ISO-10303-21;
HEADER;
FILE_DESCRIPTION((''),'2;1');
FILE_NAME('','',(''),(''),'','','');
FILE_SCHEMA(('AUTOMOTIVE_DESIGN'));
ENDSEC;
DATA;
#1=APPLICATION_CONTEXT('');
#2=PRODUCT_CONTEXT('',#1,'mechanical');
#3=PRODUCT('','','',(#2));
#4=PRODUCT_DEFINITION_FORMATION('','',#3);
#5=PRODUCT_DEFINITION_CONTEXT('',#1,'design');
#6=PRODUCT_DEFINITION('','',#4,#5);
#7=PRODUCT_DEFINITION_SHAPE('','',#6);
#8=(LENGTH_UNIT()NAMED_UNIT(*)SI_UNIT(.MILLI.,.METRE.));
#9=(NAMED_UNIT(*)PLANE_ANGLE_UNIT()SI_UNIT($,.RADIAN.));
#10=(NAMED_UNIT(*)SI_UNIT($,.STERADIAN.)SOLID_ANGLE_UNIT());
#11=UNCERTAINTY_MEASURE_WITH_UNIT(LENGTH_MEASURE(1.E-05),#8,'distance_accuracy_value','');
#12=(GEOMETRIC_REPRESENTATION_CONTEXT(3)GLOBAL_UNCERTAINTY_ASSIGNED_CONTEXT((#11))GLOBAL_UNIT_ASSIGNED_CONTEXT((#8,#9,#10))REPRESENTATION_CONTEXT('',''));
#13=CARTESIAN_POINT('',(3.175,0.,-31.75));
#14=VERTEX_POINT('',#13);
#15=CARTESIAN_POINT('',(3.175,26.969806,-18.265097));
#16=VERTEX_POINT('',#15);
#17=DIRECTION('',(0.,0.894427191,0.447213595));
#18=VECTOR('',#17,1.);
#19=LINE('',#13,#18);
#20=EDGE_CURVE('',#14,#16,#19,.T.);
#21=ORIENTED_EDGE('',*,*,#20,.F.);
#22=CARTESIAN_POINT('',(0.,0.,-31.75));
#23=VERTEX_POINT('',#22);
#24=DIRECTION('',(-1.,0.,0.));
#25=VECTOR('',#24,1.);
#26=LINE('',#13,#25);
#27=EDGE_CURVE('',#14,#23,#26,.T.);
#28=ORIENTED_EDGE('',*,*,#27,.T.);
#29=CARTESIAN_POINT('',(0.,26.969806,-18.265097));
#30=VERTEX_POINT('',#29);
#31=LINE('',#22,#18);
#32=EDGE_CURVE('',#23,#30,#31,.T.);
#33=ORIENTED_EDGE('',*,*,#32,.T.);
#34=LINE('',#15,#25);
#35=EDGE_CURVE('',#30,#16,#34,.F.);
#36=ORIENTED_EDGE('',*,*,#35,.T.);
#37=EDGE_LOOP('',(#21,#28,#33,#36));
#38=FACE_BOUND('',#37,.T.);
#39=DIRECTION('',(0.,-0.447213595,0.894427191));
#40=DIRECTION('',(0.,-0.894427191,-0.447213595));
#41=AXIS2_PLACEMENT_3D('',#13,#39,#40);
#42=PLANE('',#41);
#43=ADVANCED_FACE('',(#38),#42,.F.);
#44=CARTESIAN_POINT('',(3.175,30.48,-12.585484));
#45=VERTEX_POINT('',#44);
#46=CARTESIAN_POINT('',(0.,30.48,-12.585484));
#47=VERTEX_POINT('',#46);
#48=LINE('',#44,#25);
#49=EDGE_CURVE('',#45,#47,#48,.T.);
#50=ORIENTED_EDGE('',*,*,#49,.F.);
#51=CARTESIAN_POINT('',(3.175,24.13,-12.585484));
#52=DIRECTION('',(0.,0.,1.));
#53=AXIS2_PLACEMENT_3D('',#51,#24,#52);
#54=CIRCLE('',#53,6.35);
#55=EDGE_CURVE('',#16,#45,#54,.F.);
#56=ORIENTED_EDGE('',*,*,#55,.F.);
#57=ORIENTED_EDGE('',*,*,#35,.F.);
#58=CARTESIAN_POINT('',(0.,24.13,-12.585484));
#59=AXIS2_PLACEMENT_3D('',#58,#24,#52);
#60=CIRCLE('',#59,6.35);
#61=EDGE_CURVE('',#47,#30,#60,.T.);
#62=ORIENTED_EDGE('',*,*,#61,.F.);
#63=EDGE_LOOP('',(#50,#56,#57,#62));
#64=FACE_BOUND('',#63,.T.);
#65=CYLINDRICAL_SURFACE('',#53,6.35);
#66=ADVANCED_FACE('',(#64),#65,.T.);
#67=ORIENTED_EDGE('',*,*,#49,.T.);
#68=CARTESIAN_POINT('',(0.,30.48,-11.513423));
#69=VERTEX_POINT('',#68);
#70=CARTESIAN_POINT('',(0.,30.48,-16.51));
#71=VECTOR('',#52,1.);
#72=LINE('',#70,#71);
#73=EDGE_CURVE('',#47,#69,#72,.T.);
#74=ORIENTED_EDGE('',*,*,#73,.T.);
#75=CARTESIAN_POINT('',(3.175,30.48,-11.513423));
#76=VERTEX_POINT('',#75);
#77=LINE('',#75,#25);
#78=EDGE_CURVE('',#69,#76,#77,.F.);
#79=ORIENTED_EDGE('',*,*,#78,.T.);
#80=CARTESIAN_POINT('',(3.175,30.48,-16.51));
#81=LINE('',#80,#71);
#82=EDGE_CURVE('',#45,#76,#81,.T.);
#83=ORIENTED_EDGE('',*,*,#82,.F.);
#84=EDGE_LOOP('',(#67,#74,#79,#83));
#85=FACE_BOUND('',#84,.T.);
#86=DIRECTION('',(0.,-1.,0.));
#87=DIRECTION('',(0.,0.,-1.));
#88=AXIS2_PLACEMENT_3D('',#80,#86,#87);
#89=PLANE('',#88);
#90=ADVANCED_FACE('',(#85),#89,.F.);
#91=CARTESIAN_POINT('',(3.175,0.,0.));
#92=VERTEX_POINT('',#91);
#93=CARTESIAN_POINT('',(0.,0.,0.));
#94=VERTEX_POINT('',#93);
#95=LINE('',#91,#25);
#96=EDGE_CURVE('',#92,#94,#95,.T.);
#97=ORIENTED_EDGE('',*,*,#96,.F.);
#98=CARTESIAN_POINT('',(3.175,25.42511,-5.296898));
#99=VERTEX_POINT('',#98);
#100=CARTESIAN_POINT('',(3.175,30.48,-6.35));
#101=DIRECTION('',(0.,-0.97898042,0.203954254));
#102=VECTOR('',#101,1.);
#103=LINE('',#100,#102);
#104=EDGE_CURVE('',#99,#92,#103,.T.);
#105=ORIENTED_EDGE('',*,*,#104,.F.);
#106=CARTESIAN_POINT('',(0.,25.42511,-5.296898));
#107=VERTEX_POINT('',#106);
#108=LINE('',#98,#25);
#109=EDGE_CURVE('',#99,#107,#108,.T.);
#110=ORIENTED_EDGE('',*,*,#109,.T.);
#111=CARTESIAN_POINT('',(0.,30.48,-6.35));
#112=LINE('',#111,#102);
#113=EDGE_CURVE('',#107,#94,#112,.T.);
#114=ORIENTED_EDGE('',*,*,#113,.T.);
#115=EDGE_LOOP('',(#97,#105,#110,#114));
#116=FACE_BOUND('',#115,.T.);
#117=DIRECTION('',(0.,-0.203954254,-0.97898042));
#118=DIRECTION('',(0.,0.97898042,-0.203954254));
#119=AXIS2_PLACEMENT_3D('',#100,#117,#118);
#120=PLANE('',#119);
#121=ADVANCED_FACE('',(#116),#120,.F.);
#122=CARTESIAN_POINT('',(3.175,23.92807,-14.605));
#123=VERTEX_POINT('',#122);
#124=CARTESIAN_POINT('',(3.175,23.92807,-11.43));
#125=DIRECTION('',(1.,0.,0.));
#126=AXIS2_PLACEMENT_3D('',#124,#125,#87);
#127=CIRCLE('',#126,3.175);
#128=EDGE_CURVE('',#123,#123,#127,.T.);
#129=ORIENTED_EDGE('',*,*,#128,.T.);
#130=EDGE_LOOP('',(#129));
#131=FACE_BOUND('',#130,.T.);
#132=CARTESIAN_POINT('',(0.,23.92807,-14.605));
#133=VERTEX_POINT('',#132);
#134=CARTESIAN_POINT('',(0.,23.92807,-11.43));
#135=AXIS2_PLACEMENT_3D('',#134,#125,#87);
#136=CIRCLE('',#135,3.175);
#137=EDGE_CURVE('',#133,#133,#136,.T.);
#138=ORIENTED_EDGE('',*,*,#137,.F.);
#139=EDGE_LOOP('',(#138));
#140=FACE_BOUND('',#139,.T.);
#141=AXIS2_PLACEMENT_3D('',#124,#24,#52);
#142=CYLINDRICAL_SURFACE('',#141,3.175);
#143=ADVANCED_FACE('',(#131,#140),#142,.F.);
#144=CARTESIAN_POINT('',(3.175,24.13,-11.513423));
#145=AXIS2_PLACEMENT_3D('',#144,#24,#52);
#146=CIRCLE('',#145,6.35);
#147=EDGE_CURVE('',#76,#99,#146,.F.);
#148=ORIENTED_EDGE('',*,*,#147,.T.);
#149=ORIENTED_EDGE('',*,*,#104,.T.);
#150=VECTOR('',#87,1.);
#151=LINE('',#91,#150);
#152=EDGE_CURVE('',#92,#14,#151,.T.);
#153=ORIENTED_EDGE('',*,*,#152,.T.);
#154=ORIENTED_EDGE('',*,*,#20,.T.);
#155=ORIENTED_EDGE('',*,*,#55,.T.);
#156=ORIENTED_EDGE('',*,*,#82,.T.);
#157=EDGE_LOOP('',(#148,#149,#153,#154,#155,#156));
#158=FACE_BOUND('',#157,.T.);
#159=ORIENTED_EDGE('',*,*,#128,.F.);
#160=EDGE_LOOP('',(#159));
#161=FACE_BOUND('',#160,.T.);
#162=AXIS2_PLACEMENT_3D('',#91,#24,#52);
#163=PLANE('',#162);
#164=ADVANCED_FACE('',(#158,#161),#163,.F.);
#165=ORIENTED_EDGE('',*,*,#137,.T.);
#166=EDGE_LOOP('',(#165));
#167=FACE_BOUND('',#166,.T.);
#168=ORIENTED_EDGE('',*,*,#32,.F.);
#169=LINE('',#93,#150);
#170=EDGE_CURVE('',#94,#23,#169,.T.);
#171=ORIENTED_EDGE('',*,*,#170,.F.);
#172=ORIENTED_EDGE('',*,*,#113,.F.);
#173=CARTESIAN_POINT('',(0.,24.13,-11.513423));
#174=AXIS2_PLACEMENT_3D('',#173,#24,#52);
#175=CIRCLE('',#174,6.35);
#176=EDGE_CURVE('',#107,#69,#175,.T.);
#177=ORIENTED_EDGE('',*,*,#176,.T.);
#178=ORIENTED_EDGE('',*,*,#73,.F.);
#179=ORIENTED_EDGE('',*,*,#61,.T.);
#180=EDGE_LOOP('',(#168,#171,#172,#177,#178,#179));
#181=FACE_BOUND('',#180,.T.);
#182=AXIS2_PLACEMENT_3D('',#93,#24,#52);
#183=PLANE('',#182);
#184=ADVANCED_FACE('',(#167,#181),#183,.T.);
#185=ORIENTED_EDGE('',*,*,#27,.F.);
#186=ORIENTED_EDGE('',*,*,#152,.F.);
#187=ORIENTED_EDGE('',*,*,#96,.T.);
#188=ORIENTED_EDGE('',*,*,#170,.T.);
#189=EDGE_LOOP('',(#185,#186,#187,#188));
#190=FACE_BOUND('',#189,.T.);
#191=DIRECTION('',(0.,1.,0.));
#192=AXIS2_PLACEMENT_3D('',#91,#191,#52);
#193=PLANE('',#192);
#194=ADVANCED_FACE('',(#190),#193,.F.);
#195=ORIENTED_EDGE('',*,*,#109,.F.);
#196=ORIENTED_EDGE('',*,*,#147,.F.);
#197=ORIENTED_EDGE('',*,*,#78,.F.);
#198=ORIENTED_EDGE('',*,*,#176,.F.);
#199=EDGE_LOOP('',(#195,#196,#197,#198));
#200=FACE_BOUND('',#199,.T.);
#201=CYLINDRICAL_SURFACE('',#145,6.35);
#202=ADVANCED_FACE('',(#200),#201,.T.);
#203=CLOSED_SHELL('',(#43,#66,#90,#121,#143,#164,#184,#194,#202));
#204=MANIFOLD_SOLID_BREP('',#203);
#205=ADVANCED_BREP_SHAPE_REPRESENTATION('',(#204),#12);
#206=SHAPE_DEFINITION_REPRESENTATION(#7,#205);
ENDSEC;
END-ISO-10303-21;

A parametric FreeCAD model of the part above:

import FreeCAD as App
import Part
import Sketcher
from FreeCAD import Vector
Q = App.Units.Quantity


def edges_at(feature, points):
    """Names of the edges that pass closest to the given points."""
    edges = feature.Shape.Edges
    near = lambda p: min(range(len(edges)), key=lambda i: edges[i].distToShape(Part.Vertex(*p))[0])
    return sorted({f"Edge{near(p) + 1}" for p in points})


def add_polygon(sketch, points):
    """Adds a closed chain of lines whose ends are joined by coincident constraints."""
    first, n = sketch.GeometryCount, len(points)
    for a, b in zip(points, points[1:] + points[:1]):
        sketch.addGeometry(Part.LineSegment(App.Vector(*a, 0), App.Vector(*b, 0)), False)
    for i in range(n):
        sketch.addConstraint(Sketcher.Constraint("Coincident", first + i, 2, first + (i + 1) % n, 1))

doc = App.newDocument("Part")
params = doc.addObject("Spreadsheet::Sheet", "Params")
for row, (alias, value) in enumerate([
    ("sketch1_diameter", "0.25 in"),
    ("sketch1_height", "0.4 in"),
    ("sketch1_height2", "1.25 in"),
    ("pad1_length", "0.125 in"),
    ("fillet_radius", "0.25 in"),
], start=1):
    params.set(f"A{row}", alias)
    params.set(f"B{row}", "=" + value)
    params.setAlias(f"B{row}", alias)

body = doc.addObject("PartDesign::Body", "Body")

# Sketch on YZ plane
sketch1 = body.newObject("Sketcher::SketchObject", "Sketch")
sketch1.AttachmentSupport = (doc.getObject("YZ_Plane"), [""])
sketch1.MapMode = "FlatFace"
add_polygon(sketch1, [(0, -31.8), (30.5, -16.5), (30.5, -6.3), (0, 0)])  # lines 0-3
sketch1.addGeometry(Part.Circle(Vector(23.9, -11.4, 0), Vector(0, 0, 1), 3.2), False)  # 4
sketch1.addConstraint(Sketcher.Constraint("Vertical", 1))
sketch1.addConstraint(Sketcher.Constraint("Vertical", 3))
sketch1.addConstraint(Sketcher.Constraint("Coincident", 2, 2, -1, 1))
sketch1.addConstraint(Sketcher.Constraint("Diameter", 4, Q("0.25 in")))
sketch1.addConstraint(Sketcher.Constraint("DistanceY", 1, 1, 1, 2, Q("0.4 in")))
sketch1.addConstraint(Sketcher.Constraint("DistanceY", 3, 2, 1, 2, Q("1 in")))
sketch1.addConstraint(Sketcher.Constraint("DistanceY", 3, 2, 3, 1, Q("1.25 in")))
sketch1.addConstraint(Sketcher.Constraint("DistanceX", -1, 1, 0, 2, Q("1.2 in")))
sketch1.addConstraint(Sketcher.Constraint("DistanceY", 0, 2, 4, 3, Q("0.2 in")))
sketch1.addConstraint(Sketcher.Constraint("DistanceX", -1, 1, 4, 3, 23.92807))
sketch1.setExpression("Constraints[7]", "Params.sketch1_diameter")
sketch1.setExpression("Constraints[8]", "Params.sketch1_height")
sketch1.setExpression("Constraints[10]", "Params.sketch1_height2")
pad1 = body.newObject("PartDesign::Pad", "Pad")
pad1.Profile = sketch1
pad1.setExpression("Length", "Params.pad1_length")
doc.recompute()

fillet = body.newObject("PartDesign::Fillet", "Fillet")
fillet.Base = (pad1, edges_at(pad1, [(1.587, 30.48, -6.35), (1.587, 30.48, -16.51)]))
fillet.setExpression("Radius", "Params.fillet_radius")

doc.recompute()
